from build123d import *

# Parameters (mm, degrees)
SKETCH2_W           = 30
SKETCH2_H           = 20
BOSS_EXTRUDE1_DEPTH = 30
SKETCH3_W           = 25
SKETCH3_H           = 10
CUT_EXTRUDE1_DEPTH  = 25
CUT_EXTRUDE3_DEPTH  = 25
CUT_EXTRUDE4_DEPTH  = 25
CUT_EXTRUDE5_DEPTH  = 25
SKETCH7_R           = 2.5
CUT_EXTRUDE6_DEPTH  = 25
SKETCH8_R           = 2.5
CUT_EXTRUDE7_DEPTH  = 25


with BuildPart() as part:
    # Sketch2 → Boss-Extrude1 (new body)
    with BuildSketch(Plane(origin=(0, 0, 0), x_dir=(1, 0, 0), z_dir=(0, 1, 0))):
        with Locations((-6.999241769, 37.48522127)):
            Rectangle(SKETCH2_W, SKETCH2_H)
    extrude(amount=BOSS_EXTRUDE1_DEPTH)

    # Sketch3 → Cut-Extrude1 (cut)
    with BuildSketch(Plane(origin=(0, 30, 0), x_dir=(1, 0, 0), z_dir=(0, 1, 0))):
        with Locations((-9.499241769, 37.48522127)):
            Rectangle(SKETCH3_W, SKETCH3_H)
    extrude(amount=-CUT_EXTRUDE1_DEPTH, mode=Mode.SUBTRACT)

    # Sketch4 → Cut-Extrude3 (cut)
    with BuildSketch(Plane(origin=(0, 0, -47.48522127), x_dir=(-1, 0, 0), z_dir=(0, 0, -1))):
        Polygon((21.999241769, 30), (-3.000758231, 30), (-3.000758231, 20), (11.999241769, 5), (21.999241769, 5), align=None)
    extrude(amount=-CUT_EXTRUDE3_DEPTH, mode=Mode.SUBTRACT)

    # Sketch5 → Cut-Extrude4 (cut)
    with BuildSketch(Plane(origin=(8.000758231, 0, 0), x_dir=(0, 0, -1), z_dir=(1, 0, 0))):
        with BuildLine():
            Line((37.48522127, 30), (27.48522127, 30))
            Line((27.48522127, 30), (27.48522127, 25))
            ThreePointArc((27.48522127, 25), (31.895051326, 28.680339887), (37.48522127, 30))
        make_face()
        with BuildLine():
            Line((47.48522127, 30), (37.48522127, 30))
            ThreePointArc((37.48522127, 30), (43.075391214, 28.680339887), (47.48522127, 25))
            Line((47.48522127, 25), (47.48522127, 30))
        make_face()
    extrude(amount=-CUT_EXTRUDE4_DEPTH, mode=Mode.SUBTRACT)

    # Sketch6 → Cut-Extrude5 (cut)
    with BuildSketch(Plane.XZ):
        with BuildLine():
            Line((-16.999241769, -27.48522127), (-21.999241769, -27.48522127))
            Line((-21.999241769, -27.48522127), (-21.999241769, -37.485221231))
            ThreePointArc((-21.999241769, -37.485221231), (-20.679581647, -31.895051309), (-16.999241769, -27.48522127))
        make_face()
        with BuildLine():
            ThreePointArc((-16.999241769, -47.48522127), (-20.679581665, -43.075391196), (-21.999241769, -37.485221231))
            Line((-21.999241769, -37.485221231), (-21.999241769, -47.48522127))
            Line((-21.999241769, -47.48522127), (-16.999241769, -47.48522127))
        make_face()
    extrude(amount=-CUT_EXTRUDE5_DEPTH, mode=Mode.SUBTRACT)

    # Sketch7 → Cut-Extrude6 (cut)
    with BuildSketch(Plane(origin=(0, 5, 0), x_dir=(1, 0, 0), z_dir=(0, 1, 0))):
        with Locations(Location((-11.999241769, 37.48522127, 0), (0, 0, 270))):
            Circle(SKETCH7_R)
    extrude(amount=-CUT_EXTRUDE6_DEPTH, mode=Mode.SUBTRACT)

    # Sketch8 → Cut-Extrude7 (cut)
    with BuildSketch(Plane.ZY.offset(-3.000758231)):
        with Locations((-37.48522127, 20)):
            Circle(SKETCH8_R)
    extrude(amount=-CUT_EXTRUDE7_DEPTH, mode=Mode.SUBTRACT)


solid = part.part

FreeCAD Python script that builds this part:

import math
import FreeCAD as App
import Part
import Sketcher
from FreeCAD import Vector

doc = App.newDocument("Part")
body = doc.addObject("PartDesign::Body", "Body")

# Sketch on XZ plane
sketch1 = body.newObject("Sketcher::SketchObject", "Sketch")
sketch1.AttachmentSupport = (doc.getObject("XZ_Plane"), [""])
sketch1.MapMode = "FlatFace"
sketch1.addGeometry([
    Part.LineSegment(Vector(-22, -47, 0), Vector(-22, -27, 0)),
    Part.LineSegment(Vector(-22, -27, 0), Vector(8, -27, 0)),
    Part.LineSegment(Vector(8, -27, 0), Vector(8, -47, 0)),
    Part.LineSegment(Vector(8, -47, 0), Vector(-22, -47, 0)),
], False)
sketch1.addConstraint([
    Sketcher.Constraint("Coincident", 0, 2, 1, 1),
    Sketcher.Constraint("Coincident", 1, 2, 2, 1),
    Sketcher.Constraint("Coincident", 2, 2, 3, 1),
    Sketcher.Constraint("Coincident", 3, 2, 0, 1),
    Sketcher.Constraint("Vertical", 0),
    Sketcher.Constraint("Horizontal", 1),
    Sketcher.Constraint("Vertical", 2),
    Sketcher.Constraint("Horizontal", 3),
    Sketcher.Constraint("DistanceX", 1, 1, 1, 2, 30.0),
    Sketcher.Constraint("DistanceY", 0, 1, 0, 2, 20.0),
    Sketcher.Constraint("DistanceX", 0, 2, -1, 1, 21.999242),
    Sketcher.Constraint("DistanceY", 0, 2, -1, 1, 27.485221),
])
pad1 = body.newObject("PartDesign::Pad", "Pad")
pad1.Profile = sketch1
pad1.Length = 30
pad1.Reversed = True

# Sketch on XZ plane
sketch2 = body.newObject("Sketcher::SketchObject", "Sketch001")
sketch2.AttachmentSupport = (doc.getObject("XZ_Plane"), [""])
sketch2.MapMode = "FlatFace"
sketch2.AttachmentOffset = App.Placement(Vector(0, 0, -30), App.Rotation())
sketch2.addGeometry([
    Part.LineSegment(Vector(-22, -42, 0), Vector(-22, -32, 0)),
    Part.LineSegment(Vector(-22, -32, 0), Vector(3, -32, 0)),
    Part.LineSegment(Vector(3, -32, 0), Vector(3, -42, 0)),
    Part.LineSegment(Vector(3, -42, 0), Vector(-22, -42, 0)),
], False)
sketch2.addConstraint([
    Sketcher.Constraint("Coincident", 0, 2, 1, 1),
    Sketcher.Constraint("Coincident", 1, 2, 2, 1),
    Sketcher.Constraint("Coincident", 2, 2, 3, 1),
    Sketcher.Constraint("Coincident", 3, 2, 0, 1),
    Sketcher.Constraint("Vertical", 0),
    Sketcher.Constraint("Horizontal", 1),
    Sketcher.Constraint("Vertical", 2),
    Sketcher.Constraint("Horizontal", 3),
    Sketcher.Constraint("DistanceX", 1, 1, 1, 2, 25.0),
    Sketcher.Constraint("DistanceY", 0, 1, 0, 2, 10.0),
    Sketcher.Constraint("DistanceX", 0, 2, -1, 1, 21.999242),
    Sketcher.Constraint("DistanceY", 0, 2, -1, 1, 32.485221),
])
pocket1 = body.newObject("PartDesign::Pocket", "Pocket")
pocket1.Profile = sketch2
pocket1.Length = 25
pocket1.Reversed = True

# Sketch on XY plane
sketch3 = body.newObject("Sketcher::SketchObject", "Sketch002")
sketch3.AttachmentSupport = (doc.getObject("XY_Plane"), [""])
sketch3.MapMode = "FlatFace"
sketch3.AttachmentOffset = App.Placement(Vector(0, 0, -47.485221), App.Rotation())
sketch3.addGeometry([
    Part.LineSegment(Vector(-22, 30, 0), Vector(3, 30, 0)),  # 0
    Part.LineSegment(Vector(3, 30, 0), Vector(3, 20, 0)),  # 1
    Part.LineSegment(Vector(3, 20, 0), Vector(-12, 5, 0)),  # 2
    Part.LineSegment(Vector(-12, 5, 0), Vector(-22, 5, 0)),  # 3
    Part.LineSegment(Vector(-22, 5, 0), Vector(-22, 30, 0)),  # 4
], False)
sketch3.addConstraint([
    Sketcher.Constraint("Coincident", 0, 2, 1, 1),
    Sketcher.Constraint("Coincident", 1, 2, 2, 1),
    Sketcher.Constraint("Coincident", 2, 2, 3, 1),
    Sketcher.Constraint("Coincident", 3, 2, 4, 1),
    Sketcher.Constraint("Coincident", 4, 2, 0, 1),
    Sketcher.Constraint("Horizontal", 0),
    Sketcher.Constraint("Vertical", 1),
    Sketcher.Constraint("Horizontal", 3),
    Sketcher.Constraint("Vertical", 4),
    Sketcher.Constraint("Equal", 3, 1),
    Sketcher.Constraint("Equal", 0, 4),
    Sketcher.Constraint("DistanceX", 0, 1, 0, 2, 25.0),
    Sketcher.Constraint("DistanceX", 3, 2, 3, 1, 10.0),
    Sketcher.Constraint("DistanceY", -1, 1, 0, 2, 30.0),
    Sketcher.Constraint("DistanceX", -1, 1, 0, 2, 3.000758),
])
pocket2 = body.newObject("PartDesign::Pocket", "Pocket001")
pocket2.Profile = sketch3
pocket2.Length = 25
pocket2.Reversed = True

# Sketch on YZ plane
sketch4 = body.newObject("Sketcher::SketchObject", "Sketch003")
sketch4.AttachmentSupport = (doc.getObject("YZ_Plane"), [""])
sketch4.MapMode = "FlatFace"
sketch4.AttachmentOffset = App.Placement(Vector(0, 0, 8.000758), App.Rotation())
sketch4.addGeometry([
    Part.LineSegment(Vector(30, -37, 0), Vector(30, -27, 0)),  # 0
    Part.LineSegment(Vector(30, -27, 0), Vector(25, -27, 0)),  # 1
    Part.ArcOfCircle(Part.Circle(Vector(17, -37, 0), Vector(0, 0, 1), 13), math.radians(0), math.radians(53)),  # 2
    Part.LineSegment(Vector(30, -47, 0), Vector(30, -37, 0)),  # 3
    Part.ArcOfCircle(Part.Circle(Vector(17, -37, 0), Vector(0, 0, 1), 13), math.radians(-53), math.radians(0)),  # 4
    Part.LineSegment(Vector(25, -47, 0), Vector(30, -47, 0)),  # 5
], False)
sketch4.addConstraint([
    Sketcher.Constraint("Coincident", 0, 2, 1, 1),
    Sketcher.Constraint("Coincident", 1, 2, 2, 2),
    Sketcher.Constraint("Tangent", 2, 1, 0, 1),
    Sketcher.Constraint("Tangent", 3, 2, 4, 2),
    Sketcher.Constraint("Coincident", 4, 1, 5, 1),
    Sketcher.Constraint("Coincident", 5, 2, 3, 1),
    Sketcher.Constraint("Vertical", 0),
    Sketcher.Constraint("Horizontal", 1),
    Sketcher.Constraint("Vertical", 3),
    Sketcher.Constraint("Horizontal", 5),
    Sketcher.Constraint("Coincident", 4, 3, 2, 3),
    Sketcher.Constraint("Equal", 2, 4),
    Sketcher.Constraint("Vertical", 1, 2, 4, 1),
    Sketcher.Constraint("Radius", 2, 12.5),
    Sketcher.Constraint("DistanceX", 1, 2, 1, 1, 5.0),
    Sketcher.Constraint("DistanceX", -1, 1, 0, 2, 30.0),
    Sketcher.Constraint("DistanceY", 2, 3, -1, 1, 37.485221),
])
pocket3 = body.newObject("PartDesign::Pocket", "Pocket002")
pocket3.Profile = sketch4
pocket3.Length = 25

# Sketch on XZ plane
sketch5 = body.newObject("Sketcher::SketchObject", "Sketch004")
sketch5.AttachmentSupport = (doc.getObject("XZ_Plane"), [""])
sketch5.MapMode = "FlatFace"
sketch5.addGeometry([
    Part.LineSegment(Vector(-17, -27, 0), Vector(-22, -27, 0)),  # 0
    Part.LineSegment(Vector(-22, -27, 0), Vector(-22, -37, 0)),  # 1
    Part.ArcOfCircle(Part.Circle(Vector(-9, -37, 0), Vector(0, 0, 1), 13), math.radians(127), math.radians(180)),  # 2
    Part.ArcOfCircle(Part.Circle(Vector(-9, -37, 0), Vector(0, 0, 1), 13), math.radians(180), math.radians(233)),  # 3
    Part.LineSegment(Vector(-22, -37, 0), Vector(-22, -47, 0)),  # 4
    Part.LineSegment(Vector(-22, -47, 0), Vector(-17, -47, 0)),  # 5
], False)
sketch5.addConstraint([
    Sketcher.Constraint("Coincident", 0, 2, 1, 1),
    Sketcher.Constraint("Tangent", 1, 2, 2, 2),
    Sketcher.Constraint("Coincident", 2, 1, 0, 1),
    Sketcher.Constraint("Tangent", 3, 1, 4, 1),
    Sketcher.Constraint("Coincident", 4, 2, 5, 1),
    Sketcher.Constraint("Coincident", 5, 2, 3, 2),
    Sketcher.Constraint("Horizontal", 0),
    Sketcher.Constraint("Vertical", 1),
    Sketcher.Constraint("Vertical", 4),
    Sketcher.Constraint("Horizontal", 5),
    Sketcher.Constraint("Coincident", 3, 3, 2, 3),
    Sketcher.Constraint("Equal", 2, 3),
    Sketcher.Constraint("Vertical", 2, 1, 5, 2),
    Sketcher.Constraint("Radius", 2, 12.5),
    Sketcher.Constraint("DistanceX", 0, 2, 0, 1, 5.0),
    Sketcher.Constraint("DistanceX", 2, 3, -1, 1, 9.499242),
    Sketcher.Constraint("DistanceY", 2, 3, -1, 1, 37.485221),
])
pocket4 = body.newObject("PartDesign::Pocket", "Pocket003")
pocket4.Profile = sketch5
pocket4.Length = 25

# Sketch on XZ plane
sketch6 = body.newObject("Sketcher::SketchObject", "Sketch005")
sketch6.AttachmentSupport = (doc.getObject("XZ_Plane"), [""])
sketch6.MapMode = "FlatFace"
sketch6.AttachmentOffset = App.Placement(Vector(0, 0, -5), App.Rotation())
sketch6.addGeometry(Part.Circle(Vector(-12, -37.5, 0), Vector(0, 0, 1), 2.5), False)
sketch6.addConstraint([
    Sketcher.Constraint("Diameter", 0, 5.0),
    Sketcher.Constraint("DistanceX", 0, 3, -1, 1, 11.999242),
    Sketcher.Constraint("DistanceY", 0, 3, -1, 1, 37.485221),
])
pocket5 = body.newObject("PartDesign::Pocket", "Pocket004")
pocket5.Profile = sketch6
pocket5.Length = 25
pocket5.Reversed = True

# Sketch on YZ plane
sketch7 = body.newObject("Sketcher::SketchObject", "Sketch006")
sketch7.AttachmentSupport = (doc.getObject("YZ_Plane"), [""])
sketch7.MapMode = "FlatFace"
sketch7.AttachmentOffset = App.Placement(Vector(0, 0, 3.000758), App.Rotation())
sketch7.addGeometry(Part.Circle(Vector(20, -37.5, 0), Vector(0, 0, 1), 2.5), False)
sketch7.addConstraint([
    Sketcher.Constraint("Diameter", 0, 5.0),
    Sketcher.Constraint("DistanceX", -1, 1, 0, 3, 20.0),
    Sketcher.Constraint("DistanceY", 0, 3, -1, 1, 37.485221),
])
pocket6 = body.newObject("PartDesign::Pocket", "Pocket005")
pocket6.Profile = sketch7
pocket6.Length = 25
pocket6.Reversed = True

doc.recompute()
